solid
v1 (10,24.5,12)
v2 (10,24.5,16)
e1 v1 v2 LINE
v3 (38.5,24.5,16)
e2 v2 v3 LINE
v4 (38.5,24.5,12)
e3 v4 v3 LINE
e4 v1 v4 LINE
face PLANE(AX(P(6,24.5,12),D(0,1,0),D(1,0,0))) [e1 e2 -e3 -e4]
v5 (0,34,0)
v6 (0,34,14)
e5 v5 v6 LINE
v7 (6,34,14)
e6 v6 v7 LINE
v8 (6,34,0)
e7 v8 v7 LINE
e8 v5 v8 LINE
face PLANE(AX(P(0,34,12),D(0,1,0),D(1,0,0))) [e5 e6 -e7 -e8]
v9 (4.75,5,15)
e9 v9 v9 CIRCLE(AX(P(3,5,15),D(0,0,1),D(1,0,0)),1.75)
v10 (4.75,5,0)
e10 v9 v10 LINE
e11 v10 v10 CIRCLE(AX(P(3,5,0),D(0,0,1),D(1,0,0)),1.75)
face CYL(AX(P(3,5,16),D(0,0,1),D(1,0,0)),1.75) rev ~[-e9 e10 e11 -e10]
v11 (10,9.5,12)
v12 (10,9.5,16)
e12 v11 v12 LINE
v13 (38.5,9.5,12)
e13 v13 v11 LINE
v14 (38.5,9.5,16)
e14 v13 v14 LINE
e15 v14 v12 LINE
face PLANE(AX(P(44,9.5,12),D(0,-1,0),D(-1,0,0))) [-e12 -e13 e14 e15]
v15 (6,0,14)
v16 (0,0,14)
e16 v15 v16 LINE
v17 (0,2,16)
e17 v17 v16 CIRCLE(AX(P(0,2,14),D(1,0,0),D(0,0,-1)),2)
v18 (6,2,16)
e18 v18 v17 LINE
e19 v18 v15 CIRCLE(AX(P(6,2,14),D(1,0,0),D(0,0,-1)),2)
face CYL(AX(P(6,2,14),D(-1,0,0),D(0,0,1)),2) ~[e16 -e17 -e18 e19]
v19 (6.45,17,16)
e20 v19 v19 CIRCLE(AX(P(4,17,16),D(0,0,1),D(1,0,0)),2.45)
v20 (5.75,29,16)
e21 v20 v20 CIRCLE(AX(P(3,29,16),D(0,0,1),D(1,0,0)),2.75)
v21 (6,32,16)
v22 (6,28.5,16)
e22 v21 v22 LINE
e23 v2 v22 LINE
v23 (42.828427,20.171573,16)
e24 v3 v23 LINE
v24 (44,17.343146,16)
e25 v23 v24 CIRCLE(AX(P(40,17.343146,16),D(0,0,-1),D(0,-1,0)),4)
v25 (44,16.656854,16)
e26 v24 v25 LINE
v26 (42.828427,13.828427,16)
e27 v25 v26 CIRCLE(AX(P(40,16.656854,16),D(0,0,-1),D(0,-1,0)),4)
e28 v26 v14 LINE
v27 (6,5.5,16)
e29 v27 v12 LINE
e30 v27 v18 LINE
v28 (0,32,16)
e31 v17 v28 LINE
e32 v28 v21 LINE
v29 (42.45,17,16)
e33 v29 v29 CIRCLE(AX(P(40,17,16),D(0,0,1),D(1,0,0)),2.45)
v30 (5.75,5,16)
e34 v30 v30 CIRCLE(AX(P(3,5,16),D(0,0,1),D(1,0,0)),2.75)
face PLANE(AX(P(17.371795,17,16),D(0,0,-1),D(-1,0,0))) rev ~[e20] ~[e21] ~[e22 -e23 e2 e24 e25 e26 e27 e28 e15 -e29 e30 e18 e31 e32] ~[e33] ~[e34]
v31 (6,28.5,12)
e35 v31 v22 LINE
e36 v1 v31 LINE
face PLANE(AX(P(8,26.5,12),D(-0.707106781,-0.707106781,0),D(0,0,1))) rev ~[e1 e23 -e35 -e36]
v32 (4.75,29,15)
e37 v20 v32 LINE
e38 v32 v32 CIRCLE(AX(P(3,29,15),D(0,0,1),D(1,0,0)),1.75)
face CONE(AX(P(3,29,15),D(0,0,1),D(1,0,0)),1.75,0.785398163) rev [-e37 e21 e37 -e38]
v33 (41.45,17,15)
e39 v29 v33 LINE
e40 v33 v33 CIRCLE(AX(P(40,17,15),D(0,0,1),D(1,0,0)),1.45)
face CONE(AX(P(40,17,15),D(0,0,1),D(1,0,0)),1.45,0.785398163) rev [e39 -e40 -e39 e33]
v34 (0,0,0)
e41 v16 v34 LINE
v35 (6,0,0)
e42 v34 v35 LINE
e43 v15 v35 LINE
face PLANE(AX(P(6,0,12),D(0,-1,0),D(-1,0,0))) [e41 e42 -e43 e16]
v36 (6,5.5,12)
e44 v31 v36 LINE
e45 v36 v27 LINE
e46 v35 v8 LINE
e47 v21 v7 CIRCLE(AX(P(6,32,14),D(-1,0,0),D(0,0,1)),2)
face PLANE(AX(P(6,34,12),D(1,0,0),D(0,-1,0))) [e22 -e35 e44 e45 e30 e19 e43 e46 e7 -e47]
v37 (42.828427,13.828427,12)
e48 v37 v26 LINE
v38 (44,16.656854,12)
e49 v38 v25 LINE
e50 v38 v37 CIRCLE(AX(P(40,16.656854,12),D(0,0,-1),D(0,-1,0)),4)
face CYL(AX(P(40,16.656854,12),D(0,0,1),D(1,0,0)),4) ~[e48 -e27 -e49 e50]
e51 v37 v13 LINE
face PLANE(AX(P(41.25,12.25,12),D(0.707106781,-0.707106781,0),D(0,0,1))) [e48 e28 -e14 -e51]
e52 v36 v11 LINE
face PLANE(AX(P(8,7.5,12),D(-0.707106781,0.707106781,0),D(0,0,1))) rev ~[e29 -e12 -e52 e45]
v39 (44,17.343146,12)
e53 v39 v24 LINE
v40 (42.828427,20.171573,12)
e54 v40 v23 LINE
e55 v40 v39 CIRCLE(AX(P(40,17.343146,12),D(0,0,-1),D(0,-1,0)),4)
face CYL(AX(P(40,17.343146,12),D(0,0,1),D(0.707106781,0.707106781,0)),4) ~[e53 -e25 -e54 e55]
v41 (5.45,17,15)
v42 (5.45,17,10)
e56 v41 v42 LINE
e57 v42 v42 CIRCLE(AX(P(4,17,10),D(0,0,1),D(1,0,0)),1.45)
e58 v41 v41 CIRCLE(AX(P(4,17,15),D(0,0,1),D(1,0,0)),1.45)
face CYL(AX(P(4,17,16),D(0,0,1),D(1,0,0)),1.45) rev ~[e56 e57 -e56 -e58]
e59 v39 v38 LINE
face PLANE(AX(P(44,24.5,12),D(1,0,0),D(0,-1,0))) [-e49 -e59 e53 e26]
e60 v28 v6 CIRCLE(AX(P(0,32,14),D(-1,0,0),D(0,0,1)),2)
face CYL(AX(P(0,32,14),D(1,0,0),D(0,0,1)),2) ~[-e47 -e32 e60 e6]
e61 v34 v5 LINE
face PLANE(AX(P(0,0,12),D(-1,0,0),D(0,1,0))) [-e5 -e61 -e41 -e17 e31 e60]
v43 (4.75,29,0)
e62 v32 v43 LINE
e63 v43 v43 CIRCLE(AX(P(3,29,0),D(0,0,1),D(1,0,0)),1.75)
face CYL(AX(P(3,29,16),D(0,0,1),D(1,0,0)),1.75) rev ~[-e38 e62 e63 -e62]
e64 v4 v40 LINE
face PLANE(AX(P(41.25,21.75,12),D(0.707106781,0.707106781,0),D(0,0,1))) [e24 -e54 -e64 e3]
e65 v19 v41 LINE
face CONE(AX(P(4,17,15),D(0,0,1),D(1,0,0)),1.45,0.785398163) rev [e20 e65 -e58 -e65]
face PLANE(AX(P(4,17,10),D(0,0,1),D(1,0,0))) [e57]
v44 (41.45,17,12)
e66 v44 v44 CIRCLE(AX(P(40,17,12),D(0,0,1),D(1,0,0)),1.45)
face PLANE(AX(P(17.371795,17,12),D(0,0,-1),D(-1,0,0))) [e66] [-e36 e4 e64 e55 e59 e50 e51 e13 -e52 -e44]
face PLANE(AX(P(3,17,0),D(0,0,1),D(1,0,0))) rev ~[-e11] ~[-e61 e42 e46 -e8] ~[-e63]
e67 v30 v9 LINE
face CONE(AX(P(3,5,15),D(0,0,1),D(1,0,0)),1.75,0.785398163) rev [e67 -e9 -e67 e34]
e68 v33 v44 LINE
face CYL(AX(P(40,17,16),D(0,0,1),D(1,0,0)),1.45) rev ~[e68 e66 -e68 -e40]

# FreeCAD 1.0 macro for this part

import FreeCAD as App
import Part
import Sketcher
Q = App.Units.Quantity


def edges_at(feature, points):
    """Names of the edges that pass closest to the given points."""
    edges = feature.Shape.Edges
    near = lambda p: min(range(len(edges)), key=lambda i: edges[i].distToShape(Part.Vertex(*p))[0])
    return sorted({f"Edge{near(p) + 1}" for p in points})


def add_polygon(sketch, points):
    """Adds a closed chain of lines whose ends are joined by coincident constraints."""
    first, n = sketch.GeometryCount, len(points)
    for a, b in zip(points, points[1:] + points[:1]):
        sketch.addGeometry(Part.LineSegment(App.Vector(*a, 0), App.Vector(*b, 0)), False)
    for i in range(n):
        sketch.addConstraint(Sketcher.Constraint("Coincident", first + i, 2, first + (i + 1) % n, 1))

doc = App.newDocument("Part")
body = doc.addObject("PartDesign::Body", "Body")

# Sketch on XY plane
sketch1 = body.newObject("Sketcher::SketchObject", "Sketch")
sketch1.AttachmentSupport = (doc.getObject("XY_Plane"), [""])
sketch1.MapMode = "FlatFace"
add_polygon(sketch1, [(0, 34), (0, 0), (6, 0), (6, 34)])  # lines 0-3
sketch1.addConstraint(Sketcher.Constraint("Vertical", 0))
sketch1.addConstraint(Sketcher.Constraint("Horizontal", 1))
sketch1.addConstraint(Sketcher.Constraint("Vertical", 2))
sketch1.addConstraint(Sketcher.Constraint("Horizontal", 3))
sketch1.addConstraint(Sketcher.Constraint("Coincident", 0, 2, -1, 1))
sketch1.addConstraint(Sketcher.Constraint("DistanceX", 1, 1, 1, 2, Q("6 mm")))
sketch1.addConstraint(Sketcher.Constraint("DistanceY", 0, 2, 0, 1, Q("34 mm")))
pad1 = body.newObject("PartDesign::Pad", "Pad")
pad1.Profile = sketch1
pad1.Length = 12

# Sketch on XY plane
sketch2 = body.newObject("Sketcher::SketchObject", "Sketch001")
sketch2.AttachmentSupport = (doc.getObject("XY_Plane"), [""])
sketch2.MapMode = "FlatFace"
sketch2.AttachmentOffset = App.Placement(App.Vector(0, 0, 12), App.Rotation())
add_polygon(sketch2, [(44, 24.5), (6, 24.5), (6, 34), (0, 34), (0, 0), (6, 0), (6, 9.5), (44, 9.5)])  # lines 0-7
sketch2.addConstraint(Sketcher.Constraint("Horizontal", 0))
sketch2.addConstraint(Sketcher.Constraint("Vertical", 1))
sketch2.addConstraint(Sketcher.Constraint("Horizontal", 2))
sketch2.addConstraint(Sketcher.Constraint("Vertical", 3))
sketch2.addConstraint(Sketcher.Constraint("Horizontal", 4))
sketch2.addConstraint(Sketcher.Constraint("Vertical", 5))
sketch2.addConstraint(Sketcher.Constraint("Horizontal", 6))
sketch2.addConstraint(Sketcher.Constraint("Vertical", 7))
sketch2.addConstraint(Sketcher.Constraint("Coincident", 3, 2, -1, 1))
sketch2.addConstraint(Sketcher.Constraint("Vertical", 1, 2, 4, 2))
sketch2.addConstraint(Sketcher.Constraint("Equal", 1, 5))
sketch2.addConstraint(Sketcher.Constraint("DistanceX", 0, 2, 0, 1, Q("38 mm")))
sketch2.addConstraint(Sketcher.Constraint("DistanceX", 2, 2, 2, 1, Q("6 mm")))
sketch2.addConstraint(Sketcher.Constraint("DistanceY", 3, 2, 3, 1, Q("34 mm")))
sketch2.addConstraint(Sketcher.Constraint("DistanceY", 7, 1, 7, 2, Q("15 mm")))
pad2 = body.newObject("PartDesign::Pad", "Pad001")
pad2.Profile = sketch2
pad2.Length = 4

# Sketch on XY plane
sketch3 = body.newObject("Sketcher::SketchObject", "Sketch002")
sketch3.AttachmentSupport = (doc.getObject("XY_Plane"), [""])
sketch3.MapMode = "FlatFace"
sketch3.AttachmentOffset = App.Placement(App.Vector(0, 0, 16), App.Rotation())
sketch3.addGeometry(Part.Circle(App.Vector(3, 29, 0), App.Vector(0, 0, 1), 1.75), False)
sketch3.addGeometry(Part.Circle(App.Vector(3, 5, 0), App.Vector(0, 0, 1), 1.75), False)
sketch3.addConstraint(Sketcher.Constraint("Equal", 0, 1))
sketch3.addConstraint(Sketcher.Constraint("Vertical", 0, 3, 1, 3))
sketch3.addConstraint(Sketcher.Constraint("Diameter", 0, Q("3.5 mm")))
sketch3.addConstraint(Sketcher.Constraint("DistanceX", -1, 1, 0, 3, Q("3 mm")))
sketch3.addConstraint(Sketcher.Constraint("DistanceY", -1, 1, 0, 3, Q("29 mm")))
sketch3.addConstraint(Sketcher.Constraint("DistanceY", -1, 1, 1, 3, Q("5 mm")))
pocket1 = body.newObject("PartDesign::Pocket", "Pocket")
pocket1.Profile = sketch3
pocket1.Type = "ThroughAll"
doc.recompute()

fillet = body.newObject("PartDesign::Fillet", "Fillet")
fillet.Base = (pocket1, edges_at(pocket1, [(3, 0, 16), (3, 34, 16)]))
fillet.Radius = 2
doc.recompute()

chamfer = body.newObject("PartDesign::Chamfer", "Chamfer")
chamfer.Base = (fillet, edges_at(fillet, [(1.25, 29, 16), (1.25, 5, 16)]))
chamfer.Size = 1

# Sketch on XY plane
sketch4 = body.newObject("Sketcher::SketchObject", "Sketch003")
sketch4.AttachmentSupport = (doc.getObject("XY_Plane"), [""])
sketch4.MapMode = "FlatFace"
sketch4.AttachmentOffset = App.Placement(App.Vector(0, 0, 16), App.Rotation())
sketch4.addGeometry(Part.Circle(App.Vector(4, 17, 0), App.Vector(0, 0, 1), 1.45), False)
sketch4.addGeometry(Part.Circle(App.Vector(40, 17, 0), App.Vector(0, 0, 1), 1.45), False)
sketch4.addConstraint(Sketcher.Constraint("Equal", 0, 1))
sketch4.addConstraint(Sketcher.Constraint("Horizontal", 0, 3, 1, 3))
sketch4.addConstraint(Sketcher.Constraint("Diameter", 0, Q("2.9 mm")))
sketch4.addConstraint(Sketcher.Constraint("DistanceX", -1, 1, 0, 3, Q("4 mm")))
sketch4.addConstraint(Sketcher.Constraint("DistanceY", -1, 1, 0, 3, Q("17 mm")))
sketch4.addConstraint(Sketcher.Constraint("DistanceX", -1, 1, 1, 3, Q("40 mm")))
pocket2 = body.newObject("PartDesign::Pocket", "Pocket001")
pocket2.Profile = sketch4
pocket2.Length = 6
doc.recompute()

chamfer2 = body.newObject("PartDesign::Chamfer", "Chamfer001")
chamfer2.Base = (pocket2, edges_at(pocket2, [(44, 9.5, 14), (44, 24.5, 14)]))
chamfer2.Size = 5.5
doc.recompute()

fillet2 = body.newObject("PartDesign::Fillet", "Fillet001")
fillet2.Base = (chamfer2, edges_at(chamfer2, [(44, 15, 14), (44, 19, 14)]))
fillet2.Radius = 4
doc.recompute()

chamfer3 = body.newObject("PartDesign::Chamfer", "Chamfer002")
chamfer3.Base = (fillet2, edges_at(fillet2, [(6, 9.5, 14), (6, 24.5, 14)]))
chamfer3.Size = 4
doc.recompute()

chamfer4 = body.newObject("PartDesign::Chamfer", "Chamfer003")
chamfer4.Base = (chamfer3, edges_at(chamfer3, [(2.55, 17, 16), (38.55, 17, 16)]))
chamfer4.Size = 1

doc.recompute()
